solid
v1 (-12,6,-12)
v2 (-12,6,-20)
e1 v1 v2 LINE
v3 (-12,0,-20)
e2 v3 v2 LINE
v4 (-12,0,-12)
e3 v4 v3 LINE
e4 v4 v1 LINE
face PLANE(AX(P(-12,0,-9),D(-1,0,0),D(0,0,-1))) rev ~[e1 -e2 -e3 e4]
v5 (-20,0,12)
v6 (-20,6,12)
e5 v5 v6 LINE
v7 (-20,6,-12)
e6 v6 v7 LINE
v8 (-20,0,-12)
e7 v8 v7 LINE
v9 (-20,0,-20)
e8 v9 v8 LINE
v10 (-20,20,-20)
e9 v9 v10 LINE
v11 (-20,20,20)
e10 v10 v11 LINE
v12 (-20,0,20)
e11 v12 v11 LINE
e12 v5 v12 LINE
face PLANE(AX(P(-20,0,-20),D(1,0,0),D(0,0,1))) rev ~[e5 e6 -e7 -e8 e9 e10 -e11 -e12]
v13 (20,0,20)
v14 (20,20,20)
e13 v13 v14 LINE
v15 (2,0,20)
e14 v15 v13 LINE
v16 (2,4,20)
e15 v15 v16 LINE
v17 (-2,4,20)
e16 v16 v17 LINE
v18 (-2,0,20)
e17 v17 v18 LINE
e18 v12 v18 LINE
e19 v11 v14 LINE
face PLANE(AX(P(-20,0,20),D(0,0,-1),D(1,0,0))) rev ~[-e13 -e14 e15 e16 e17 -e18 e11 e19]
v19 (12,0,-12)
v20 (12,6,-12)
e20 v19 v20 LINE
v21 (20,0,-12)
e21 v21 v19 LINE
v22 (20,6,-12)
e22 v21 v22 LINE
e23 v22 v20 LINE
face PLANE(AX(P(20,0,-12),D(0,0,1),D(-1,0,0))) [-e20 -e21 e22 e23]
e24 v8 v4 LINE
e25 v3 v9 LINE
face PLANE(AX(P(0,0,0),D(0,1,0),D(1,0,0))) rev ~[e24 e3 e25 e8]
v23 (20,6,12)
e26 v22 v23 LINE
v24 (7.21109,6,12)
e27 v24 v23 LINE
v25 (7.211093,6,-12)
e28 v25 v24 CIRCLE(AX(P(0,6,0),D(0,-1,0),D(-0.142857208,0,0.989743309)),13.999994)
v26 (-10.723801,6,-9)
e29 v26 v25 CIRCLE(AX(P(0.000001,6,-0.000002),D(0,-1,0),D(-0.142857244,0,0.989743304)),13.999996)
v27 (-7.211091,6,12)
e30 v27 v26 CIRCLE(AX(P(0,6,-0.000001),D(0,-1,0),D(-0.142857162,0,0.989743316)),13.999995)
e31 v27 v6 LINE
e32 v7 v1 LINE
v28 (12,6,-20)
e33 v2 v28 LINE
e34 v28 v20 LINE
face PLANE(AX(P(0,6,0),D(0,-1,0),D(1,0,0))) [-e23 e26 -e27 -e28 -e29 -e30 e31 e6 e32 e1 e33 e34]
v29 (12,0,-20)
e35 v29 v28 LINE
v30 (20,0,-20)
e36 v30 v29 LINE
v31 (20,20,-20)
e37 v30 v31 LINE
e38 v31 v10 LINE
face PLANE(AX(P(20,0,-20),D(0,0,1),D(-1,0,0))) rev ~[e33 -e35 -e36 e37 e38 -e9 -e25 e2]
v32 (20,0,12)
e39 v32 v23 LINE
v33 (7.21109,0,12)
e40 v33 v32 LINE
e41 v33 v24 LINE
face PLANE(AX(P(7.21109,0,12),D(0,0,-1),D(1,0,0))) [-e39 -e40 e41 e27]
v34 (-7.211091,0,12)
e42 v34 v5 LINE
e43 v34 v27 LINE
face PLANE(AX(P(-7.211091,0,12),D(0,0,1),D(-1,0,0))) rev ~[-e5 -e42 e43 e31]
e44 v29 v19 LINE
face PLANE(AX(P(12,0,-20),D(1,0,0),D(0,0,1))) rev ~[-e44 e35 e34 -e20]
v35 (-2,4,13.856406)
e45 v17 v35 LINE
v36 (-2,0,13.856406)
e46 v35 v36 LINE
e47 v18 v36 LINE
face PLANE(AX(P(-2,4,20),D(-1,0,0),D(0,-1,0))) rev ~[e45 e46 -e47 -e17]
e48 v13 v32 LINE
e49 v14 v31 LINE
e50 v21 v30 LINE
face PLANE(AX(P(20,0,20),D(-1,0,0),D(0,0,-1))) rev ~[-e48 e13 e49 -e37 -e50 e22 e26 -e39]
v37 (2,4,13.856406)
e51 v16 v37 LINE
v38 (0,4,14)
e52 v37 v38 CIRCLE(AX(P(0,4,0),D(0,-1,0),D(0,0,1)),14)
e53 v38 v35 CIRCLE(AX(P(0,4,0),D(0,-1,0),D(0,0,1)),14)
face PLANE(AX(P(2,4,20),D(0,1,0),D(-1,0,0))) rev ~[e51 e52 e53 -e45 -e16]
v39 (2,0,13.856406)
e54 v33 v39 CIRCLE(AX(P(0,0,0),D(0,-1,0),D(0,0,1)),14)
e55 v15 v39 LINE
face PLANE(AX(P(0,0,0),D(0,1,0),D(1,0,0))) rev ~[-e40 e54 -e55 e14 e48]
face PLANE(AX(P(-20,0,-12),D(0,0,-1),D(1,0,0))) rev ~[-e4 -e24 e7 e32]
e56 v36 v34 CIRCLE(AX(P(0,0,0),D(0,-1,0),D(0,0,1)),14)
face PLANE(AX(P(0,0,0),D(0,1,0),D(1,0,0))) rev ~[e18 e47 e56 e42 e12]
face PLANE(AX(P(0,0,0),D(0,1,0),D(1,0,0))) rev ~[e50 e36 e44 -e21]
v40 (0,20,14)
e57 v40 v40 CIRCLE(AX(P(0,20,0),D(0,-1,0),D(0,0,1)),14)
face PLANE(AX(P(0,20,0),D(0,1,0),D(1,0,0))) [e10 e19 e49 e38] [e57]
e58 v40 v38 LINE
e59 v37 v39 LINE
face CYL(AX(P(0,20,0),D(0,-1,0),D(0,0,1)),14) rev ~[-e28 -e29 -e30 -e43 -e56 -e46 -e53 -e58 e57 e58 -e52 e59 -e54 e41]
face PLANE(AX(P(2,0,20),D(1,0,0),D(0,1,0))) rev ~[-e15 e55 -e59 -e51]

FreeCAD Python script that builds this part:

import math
import FreeCAD as App
import Part
import Sketcher

V = App.Vector


def add_polygon(sketch, points):
    """Adds a closed chain of lines whose ends are joined by coincident constraints."""
    first, n = sketch.GeometryCount, len(points)
    for a, b in zip(points, points[1:] + points[:1]):
        sketch.addGeometry(Part.LineSegment(App.Vector(*a, 0), App.Vector(*b, 0)), False)
    for i in range(n):
        sketch.addConstraint(Sketcher.Constraint("Coincident", first + i, 2, first + (i + 1) % n, 1))

doc = App.newDocument("Part")
body = doc.addObject("PartDesign::Body", "Body")

# Sketch on XZ plane
sketch1 = body.newObject("Sketcher::SketchObject", "Sketch")
sketch1.AttachmentSupport = (doc.getObject("XZ_Plane"), [""])
sketch1.MapMode = "FlatFace"
add_polygon(sketch1, [(20, 20), (20, -20), (-20, -20), (-20, 20)])  # lines 0-3
sketch1.addConstraint([
    Sketcher.Constraint("Vertical", 0),
    Sketcher.Constraint("Horizontal", 1),
    Sketcher.Constraint("Vertical", 2),
    Sketcher.Constraint("Horizontal", 3),
    Sketcher.Constraint("Symmetric", 0, 2, 2, 2, -1, 1),
    Sketcher.Constraint("Equal", 3, 0),
    Sketcher.Constraint("DistanceX", 1, 2, 1, 1, 40.0),
])
pad1 = body.newObject("PartDesign::Pad", "Pad")
pad1.Profile = sketch1
pad1.Length = 20
pad1.Reversed = True

# Sketch on XZ plane
sketch2 = body.newObject("Sketcher::SketchObject", "Sketch001")
sketch2.AttachmentSupport = (doc.getObject("XZ_Plane"), [""])
sketch2.MapMode = "FlatFace"
sketch2.AttachmentOffset = App.Placement(V(0, 0, -20), App.Rotation())
sketch2.addGeometry(Part.Circle(V(0, 0, 0), V(0, 0, 1), 14), False)
sketch2.addConstraint([
    Sketcher.Constraint("Coincident", 0, 3, -1, 1),
    Sketcher.Constraint("Diameter", 0, 28.0),
])
doc.recompute()
hole = body.newObject("PartDesign::Hole", "Hole")
hole.Profile = sketch2
hole.ThreadType = "None"
hole.Diameter = 28
hole.DepthType = "ThroughAll"
hole.Reversed = True

# Sketch on XY plane
sketch3 = body.newObject("Sketcher::SketchObject", "Sketch002")
sketch3.AttachmentSupport = (doc.getObject("XY_Plane"), [""])
sketch3.MapMode = "FlatFace"
sketch3.AttachmentOffset = App.Placement(V(0, 0, 20), App.Rotation())
add_polygon(sketch3, [(-2, 4), (-2, 0), (2, 0), (2, 4)])  # lines 0-3
sketch3.addConstraint([
    Sketcher.Constraint("Vertical", 0),
    Sketcher.Constraint("Horizontal", 1),
    Sketcher.Constraint("Vertical", 2),
    Sketcher.Constraint("Horizontal", 3),
    Sketcher.Constraint("Symmetric", 0, 2, 1, 2, -1, 1),
    Sketcher.Constraint("Equal", 3, 0),
    Sketcher.Constraint("DistanceX", 1, 1, 1, 2, 4.0),
])
pocket1 = body.newObject("PartDesign::Pocket", "Pocket")
pocket1.Profile = sketch3
pocket1.Length = 10

# Sketch on XZ plane
sketch4 = body.newObject("Sketcher::SketchObject", "Sketch003")
sketch4.AttachmentSupport = (doc.getObject("XZ_Plane"), [""])
sketch4.MapMode = "FlatFace"
sketch4.addGeometry([
    Part.ArcOfCircle(Part.Circle(V(0, 0, 0), V(0, 0, 1), 13.999994), math.radians(-58.997324), math.radians(58.997324)),
    Part.LineSegment(V(7.21109, -12, 0), V(20, -12, 0)),
    Part.LineSegment(V(20, -12, 0), V(20, 12, 0)),
    Part.LineSegment(V(20, 12, 0), V(7.21109, 12, 0)),
], False)
sketch4.addConstraint([
    Sketcher.Constraint("Coincident", 0, 1, 1, 1),
    Sketcher.Constraint("Coincident", 1, 2, 2, 1),
    Sketcher.Constraint("Coincident", 2, 2, 3, 1),
    Sketcher.Constraint("Coincident", 3, 2, 0, 2),
    Sketcher.Constraint("Horizontal", 1),
    Sketcher.Constraint("Vertical", 2),
    Sketcher.Constraint("Horizontal", 3),
    Sketcher.Constraint("Coincident", 0, 3, -1, 1),
    Sketcher.Constraint("Vertical", 0, 1, 3, 2),
    Sketcher.Constraint("Radius", 0, 14.0),
    Sketcher.Constraint("DistanceY", 2, 1, 2, 2, 24.0),
    Sketcher.Constraint("DistanceX", -1, 1, 1, 2, 20.0),
])
pocket2 = body.newObject("PartDesign::Pocket", "Pocket001")
pocket2.Profile = sketch4
pocket2.Length = 6

# Sketch on XZ plane
sketch5 = body.newObject("Sketcher::SketchObject", "Sketch004")
sketch5.AttachmentSupport = (doc.getObject("XZ_Plane"), [""])
sketch5.MapMode = "FlatFace"
sketch5.addGeometry([
    Part.LineSegment(V(12, -20, 0), V(12, -12, 0)),  # 0
    Part.LineSegment(V(12, -12, 0), V(7.2111, -12, 0)),  # 1
    Part.ArcOfCircle(Part.Circle(V(0, 0, 0), V(0, 0, 1), 13.999994), math.radians(-139.994781), math.radians(-58.99729)),  # 2
    Part.LineSegment(V(-10.723798, -9, 0), V(-12, -9, 0)),  # 3
    Part.LineSegment(V(-12, -9, 0), V(-12, -20, 0)),  # 4
    Part.LineSegment(V(-12, -20, 0), V(12, -20, 0)),  # 5
], False)
sketch5.addConstraint([
    Sketcher.Constraint("Coincident", 0, 2, 1, 1),
    Sketcher.Constraint("Coincident", 1, 2, 2, 2),
    Sketcher.Constraint("Coincident", 2, 1, 3, 1),
    Sketcher.Constraint("Coincident", 3, 2, 4, 1),
    Sketcher.Constraint("Coincident", 4, 2, 5, 1),
    Sketcher.Constraint("Coincident", 5, 2, 0, 1),
    Sketcher.Constraint("Vertical", 0),
    Sketcher.Constraint("Horizontal", 1),
    Sketcher.Constraint("Horizontal", 3),
    Sketcher.Constraint("Vertical", 4),
    Sketcher.Constraint("Horizontal", 5),
    Sketcher.Constraint("Coincident", 2, 3, -1, 1),
    Sketcher.Constraint("Radius", 2, 14.0),
    Sketcher.Constraint("DistanceX", 5, 1, 5, 2, 24.0),
    Sketcher.Constraint("DistanceY", 0, 1, 0, 2, 8.0),
    Sketcher.Constraint("DistanceY", 4, 2, 4, 1, 11.0),
    Sketcher.Constraint("DistanceX", -1, 1, 0, 2, 12.0),
    Sketcher.Constraint("DistanceY", 0, 2, -1, 1, 12.0),
])
pocket3 = body.newObject("PartDesign::Pocket", "Pocket002")
pocket3.Profile = sketch5
pocket3.Length = 6

# Sketch on XZ plane
sketch6 = body.newObject("Sketcher::SketchObject", "Sketch005")
sketch6.AttachmentSupport = (doc.getObject("XZ_Plane"), [""])
sketch6.MapMode = "FlatFace"
sketch6.addGeometry([
    Part.LineSegment(V(-20, -12, 0), V(-12, -12, 0)),  # 0
    Part.LineSegment(V(-12, -12, 0), V(-12, -9, 0)),  # 1
    Part.LineSegment(V(-12, -9, 0), V(-10.7238, -9, 0)),  # 2
    Part.ArcOfCircle(Part.Circle(V(0, 0, 0), V(0, 0, 1), 13.999994), math.radians(121.002673), math.radians(220.005215)),  # 3
    Part.LineSegment(V(-7.211089, 12, 0), V(-20, 12, 0)),  # 4
    Part.LineSegment(V(-20, 12, 0), V(-20, -12, 0)),  # 5
], False)
sketch6.addConstraint([
    Sketcher.Constraint("Coincident", 0, 2, 1, 1),
    Sketcher.Constraint("Coincident", 1, 2, 2, 1),
    Sketcher.Constraint("Coincident", 2, 2, 3, 2),
    Sketcher.Constraint("Coincident", 3, 1, 4, 1),
    Sketcher.Constraint("Coincident", 4, 2, 5, 1),
    Sketcher.Constraint("Coincident", 5, 2, 0, 1),
    Sketcher.Constraint("Horizontal", 0),
    Sketcher.Constraint("Vertical", 1),
    Sketcher.Constraint("Horizontal", 2),
    Sketcher.Constraint("Horizontal", 4),
    Sketcher.Constraint("Vertical", 5),
    Sketcher.Constraint("Coincident", 3, 3, -1, 1),
    Sketcher.Constraint("Radius", 3, 14.0),
    Sketcher.Constraint("DistanceX", 0, 1, 0, 2, 8.0),
    Sketcher.Constraint("DistanceY", 1, 1, 1, 2, 3.0),
    Sketcher.Constraint("DistanceY", 5, 2, 5, 1, 24.0),
    Sketcher.Constraint("DistanceX", 0, 2, -1, 1, 12.0),
    Sketcher.Constraint("DistanceY", 0, 2, -1, 1, 12.0),
])
pocket4 = body.newObject("PartDesign::Pocket", "Pocket003")
pocket4.Profile = sketch6
pocket4.Length = 6

doc.recompute()
